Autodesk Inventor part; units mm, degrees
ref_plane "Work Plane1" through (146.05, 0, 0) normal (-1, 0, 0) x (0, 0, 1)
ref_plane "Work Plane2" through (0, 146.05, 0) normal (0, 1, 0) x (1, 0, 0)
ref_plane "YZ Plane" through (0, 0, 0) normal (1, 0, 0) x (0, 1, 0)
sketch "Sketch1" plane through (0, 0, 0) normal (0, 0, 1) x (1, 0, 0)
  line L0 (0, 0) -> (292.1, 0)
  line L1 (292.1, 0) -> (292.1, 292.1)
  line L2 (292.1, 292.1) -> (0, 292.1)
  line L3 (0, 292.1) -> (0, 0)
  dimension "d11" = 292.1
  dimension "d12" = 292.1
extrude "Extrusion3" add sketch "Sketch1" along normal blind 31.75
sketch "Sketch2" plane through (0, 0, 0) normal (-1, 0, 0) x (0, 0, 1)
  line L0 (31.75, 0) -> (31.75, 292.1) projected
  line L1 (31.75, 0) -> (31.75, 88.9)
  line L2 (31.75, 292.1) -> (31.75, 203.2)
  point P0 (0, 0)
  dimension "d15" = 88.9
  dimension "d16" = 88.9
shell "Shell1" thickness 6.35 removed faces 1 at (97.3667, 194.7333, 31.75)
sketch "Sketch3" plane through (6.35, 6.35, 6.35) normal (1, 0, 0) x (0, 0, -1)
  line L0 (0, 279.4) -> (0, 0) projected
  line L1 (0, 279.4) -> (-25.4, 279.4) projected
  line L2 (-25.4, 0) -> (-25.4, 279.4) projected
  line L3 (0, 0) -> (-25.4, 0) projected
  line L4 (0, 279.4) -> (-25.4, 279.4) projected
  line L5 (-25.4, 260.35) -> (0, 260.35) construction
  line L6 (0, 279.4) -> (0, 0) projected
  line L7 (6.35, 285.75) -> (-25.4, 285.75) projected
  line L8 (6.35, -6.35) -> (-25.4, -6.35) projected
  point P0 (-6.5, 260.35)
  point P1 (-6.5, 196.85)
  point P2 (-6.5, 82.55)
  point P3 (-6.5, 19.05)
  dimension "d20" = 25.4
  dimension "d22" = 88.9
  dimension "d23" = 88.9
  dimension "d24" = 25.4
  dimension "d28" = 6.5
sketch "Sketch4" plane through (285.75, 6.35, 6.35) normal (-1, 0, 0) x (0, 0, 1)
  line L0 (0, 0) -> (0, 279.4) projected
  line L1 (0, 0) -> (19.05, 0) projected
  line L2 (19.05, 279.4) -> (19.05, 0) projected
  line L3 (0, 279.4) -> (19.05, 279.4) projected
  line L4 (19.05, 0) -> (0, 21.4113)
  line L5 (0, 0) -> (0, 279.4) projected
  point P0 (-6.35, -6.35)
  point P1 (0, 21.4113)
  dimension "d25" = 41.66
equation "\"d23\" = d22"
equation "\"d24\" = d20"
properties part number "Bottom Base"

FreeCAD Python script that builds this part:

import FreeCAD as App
import Part
import Sketcher

V = App.Vector
Q = App.Units.Quantity


def faces_at(feature, points):
    """Names of the faces that lie closest to the given points."""
    faces = feature.Shape.Faces
    near = lambda p: min(range(len(faces)), key=lambda i: faces[i].distToShape(Part.Vertex(*p))[0])
    return sorted({f"Face{near(p) + 1}" for p in points})


def add_polygon(sketch, points):
    """Adds a closed chain of lines whose ends are joined by coincident constraints."""
    first, n = sketch.GeometryCount, len(points)
    for a, b in zip(points, points[1:] + points[:1]):
        sketch.addGeometry(Part.LineSegment(App.Vector(*a, 0), App.Vector(*b, 0)), False)
    for i in range(n):
        sketch.addConstraint(Sketcher.Constraint("Coincident", first + i, 2, first + (i + 1) % n, 1))

doc = App.newDocument("Part")
body = doc.addObject("PartDesign::Body", "Body")

# Sketch on XY plane
sketch1 = doc.addObject("Sketcher::SketchObject", "Sketch")
body.addObject(sketch1)
sketch1.AttachmentSupport = (doc.XY_Plane, [""])
sketch1.MapMode = "FlatFace"
add_polygon(sketch1, [(0, 292), (0, 0), (292, 0), (292, 292)])  # lines 0-3
sketch1.addConstraint(Sketcher.Constraint("Vertical", 0))
sketch1.addConstraint(Sketcher.Constraint("Horizontal", 1))
sketch1.addConstraint(Sketcher.Constraint("Vertical", 2))
sketch1.addConstraint(Sketcher.Constraint("Horizontal", 3))
sketch1.addConstraint(Sketcher.Constraint("Coincident", 0, 2, -1, 1))
sketch1.addConstraint(Sketcher.Constraint("Equal", 3, 0))
sketch1.addConstraint(Sketcher.Constraint("DistanceX", 1, 1, 1, 2, Q("11.5 in")))
pad1 = doc.addObject("PartDesign::Pad", "Pad")
body.addObject(pad1)
pad1.Profile = sketch1
pad1.Length = Q("1.25 in")
doc.recompute()

thickness = doc.addObject("PartDesign::Thickness", "Thickness")
body.addObject(thickness)
thickness.Base = (pad1, faces_at(pad1, [(97.367, 194.733, 31.75)]))
thickness.Value = Q("0.25 in")
thickness.Reversed = True
thickness.Join = "Intersection"

doc.recompute()
